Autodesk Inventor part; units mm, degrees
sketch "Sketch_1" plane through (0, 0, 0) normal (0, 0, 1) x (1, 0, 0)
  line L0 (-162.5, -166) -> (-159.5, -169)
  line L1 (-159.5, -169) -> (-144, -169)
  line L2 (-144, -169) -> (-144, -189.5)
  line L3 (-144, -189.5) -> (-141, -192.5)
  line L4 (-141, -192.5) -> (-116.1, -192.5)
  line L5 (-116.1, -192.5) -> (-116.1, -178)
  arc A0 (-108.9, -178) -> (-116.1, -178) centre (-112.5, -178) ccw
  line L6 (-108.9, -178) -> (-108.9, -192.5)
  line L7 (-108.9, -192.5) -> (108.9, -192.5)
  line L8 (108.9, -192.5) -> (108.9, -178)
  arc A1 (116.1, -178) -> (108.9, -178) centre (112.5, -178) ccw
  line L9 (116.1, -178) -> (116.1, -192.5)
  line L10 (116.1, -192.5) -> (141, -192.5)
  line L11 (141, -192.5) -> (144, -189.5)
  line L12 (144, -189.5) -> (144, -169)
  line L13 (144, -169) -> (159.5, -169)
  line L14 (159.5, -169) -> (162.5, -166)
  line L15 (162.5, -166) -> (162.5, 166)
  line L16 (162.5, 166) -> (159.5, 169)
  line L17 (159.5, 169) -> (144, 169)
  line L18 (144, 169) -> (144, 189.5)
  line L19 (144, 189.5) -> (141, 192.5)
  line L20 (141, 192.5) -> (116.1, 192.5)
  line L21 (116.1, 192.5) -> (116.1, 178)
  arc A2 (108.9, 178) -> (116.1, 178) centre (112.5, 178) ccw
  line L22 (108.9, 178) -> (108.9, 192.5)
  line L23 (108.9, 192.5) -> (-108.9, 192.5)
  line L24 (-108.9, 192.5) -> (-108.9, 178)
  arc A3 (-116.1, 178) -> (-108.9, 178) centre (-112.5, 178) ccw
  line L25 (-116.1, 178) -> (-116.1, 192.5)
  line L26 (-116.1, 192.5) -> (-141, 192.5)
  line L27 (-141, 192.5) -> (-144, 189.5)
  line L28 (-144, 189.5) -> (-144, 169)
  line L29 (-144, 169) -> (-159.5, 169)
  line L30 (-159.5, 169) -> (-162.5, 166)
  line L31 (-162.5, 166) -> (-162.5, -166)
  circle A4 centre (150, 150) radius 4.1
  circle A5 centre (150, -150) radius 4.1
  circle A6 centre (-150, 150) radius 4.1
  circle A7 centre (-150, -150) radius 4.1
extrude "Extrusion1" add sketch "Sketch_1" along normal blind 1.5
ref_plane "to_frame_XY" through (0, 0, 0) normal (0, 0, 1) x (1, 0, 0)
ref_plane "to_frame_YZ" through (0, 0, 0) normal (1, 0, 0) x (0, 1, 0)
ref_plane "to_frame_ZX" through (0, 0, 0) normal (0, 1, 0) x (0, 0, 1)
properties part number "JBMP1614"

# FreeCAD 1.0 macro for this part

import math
import FreeCAD as App
import Part
import Sketcher

V = App.Vector

doc = App.newDocument("Part")
body = doc.addObject("PartDesign::Body", "Body")

# Sketch on XY plane
sketch1 = body.newObject("Sketcher::SketchObject", "Sketch")
sketch1.AttachmentSupport = (doc.getObject("XY_Plane"), [""])
sketch1.MapMode = "FlatFace"
sketch1.addGeometry(Part.LineSegment(V(-162.5, 166, 0), V(-162.5, -166, 0)), False)
sketch1.addGeometry(Part.LineSegment(V(-162.5, -166, 0), V(-159.5, -169, 0)), False)
sketch1.addGeometry(Part.LineSegment(V(-159.5, -169, 0), V(-144, -169, 0)), False)
sketch1.addGeometry(Part.LineSegment(V(-144, -169, 0), V(-144, -189.5, 0)), False)
sketch1.addGeometry(Part.LineSegment(V(-144, -189.5, 0), V(-141, -192.5, 0)), False)
sketch1.addGeometry(Part.LineSegment(V(-141, -192.5, 0), V(-116.1, -192.5, 0)), False)
sketch1.addGeometry(Part.LineSegment(V(-116.1, -192.5, 0), V(-116.1, -178, 0)), False)
sketch1.addGeometry(Part.ArcOfCircle(Part.Circle(V(-112.5, -178, 0), V(0, 0, 1), 3.6), math.radians(0), math.radians(180)), False)
sketch1.addGeometry(Part.LineSegment(V(-108.9, -178, 0), V(-108.9, -192.5, 0)), False)
sketch1.addGeometry(Part.LineSegment(V(-108.9, -192.5, 0), V(108.9, -192.5, 0)), False)
sketch1.addGeometry(Part.LineSegment(V(108.9, -192.5, 0), V(108.9, -178, 0)), False)
sketch1.addGeometry(Part.ArcOfCircle(Part.Circle(V(112.5, -178, 0), V(0, 0, 1), 3.6), math.radians(0), math.radians(180)), False)
sketch1.addGeometry(Part.LineSegment(V(116.1, -178, 0), V(116.1, -192.5, 0)), False)
sketch1.addGeometry(Part.LineSegment(V(116.1, -192.5, 0), V(141, -192.5, 0)), False)
sketch1.addGeometry(Part.LineSegment(V(141, -192.5, 0), V(144, -189.5, 0)), False)
sketch1.addGeometry(Part.LineSegment(V(144, -189.5, 0), V(144, -169, 0)), False)
sketch1.addGeometry(Part.LineSegment(V(144, -169, 0), V(159.5, -169, 0)), False)
sketch1.addGeometry(Part.LineSegment(V(159.5, -169, 0), V(162.5, -166, 0)), False)
sketch1.addGeometry(Part.LineSegment(V(162.5, -166, 0), V(162.5, 166, 0)), False)
sketch1.addGeometry(Part.LineSegment(V(162.5, 166, 0), V(159.5, 169, 0)), False)
sketch1.addGeometry(Part.LineSegment(V(159.5, 169, 0), V(144, 169, 0)), False)
sketch1.addGeometry(Part.LineSegment(V(144, 169, 0), V(144, 189.5, 0)), False)
sketch1.addGeometry(Part.LineSegment(V(144, 189.5, 0), V(141, 192.5, 0)), False)
sketch1.addGeometry(Part.LineSegment(V(141, 192.5, 0), V(116.1, 192.5, 0)), False)
sketch1.addGeometry(Part.LineSegment(V(116.1, 192.5, 0), V(116.1, 178, 0)), False)
sketch1.addGeometry(Part.ArcOfCircle(Part.Circle(V(112.5, 178, 0), V(0, 0, 1), 3.6), math.radians(180), math.radians(360)), False)
sketch1.addGeometry(Part.LineSegment(V(108.9, 178, 0), V(108.9, 192.5, 0)), False)
sketch1.addGeometry(Part.LineSegment(V(108.9, 192.5, 0), V(-108.9, 192.5, 0)), False)
sketch1.addGeometry(Part.LineSegment(V(-108.9, 192.5, 0), V(-108.9, 178, 0)), False)
sketch1.addGeometry(Part.ArcOfCircle(Part.Circle(V(-112.5, 178, 0), V(0, 0, 1), 3.6), math.radians(180), math.radians(360)), False)
sketch1.addGeometry(Part.LineSegment(V(-116.1, 178, 0), V(-116.1, 192.5, 0)), False)
sketch1.addGeometry(Part.LineSegment(V(-116.1, 192.5, 0), V(-141, 192.5, 0)), False)
sketch1.addGeometry(Part.LineSegment(V(-141, 192.5, 0), V(-144, 189.5, 0)), False)
sketch1.addGeometry(Part.LineSegment(V(-144, 189.5, 0), V(-144, 169, 0)), False)
sketch1.addGeometry(Part.LineSegment(V(-144, 169, 0), V(-159.5, 169, 0)), False)
sketch1.addGeometry(Part.LineSegment(V(-159.5, 169, 0), V(-162.5, 166, 0)), False)
sketch1.addGeometry(Part.Circle(V(-150, -150, 0), V(0, 0, 1), 4.1), False)
sketch1.addGeometry(Part.Circle(V(150, -150, 0), V(0, 0, 1), 4.1), False)
sketch1.addGeometry(Part.Circle(V(-150, 150, 0), V(0, 0, 1), 4.1), False)
sketch1.addGeometry(Part.Circle(V(150, 150, 0), V(0, 0, 1), 4.1), False)
sketch1.addConstraint(Sketcher.Constraint("Coincident", 0, 2, 1, 1))
sketch1.addConstraint(Sketcher.Constraint("Coincident", 1, 2, 2, 1))
sketch1.addConstraint(Sketcher.Constraint("Coincident", 2, 2, 3, 1))
sketch1.addConstraint(Sketcher.Constraint("Coincident", 3, 2, 4, 1))
sketch1.addConstraint(Sketcher.Constraint("Coincident", 4, 2, 5, 1))
sketch1.addConstraint(Sketcher.Constraint("Coincident", 5, 2, 6, 1))
sketch1.addConstraint(Sketcher.Constraint("Tangent", 6, 2, 7, 2))
sketch1.addConstraint(Sketcher.Constraint("Tangent", 7, 1, 8, 1))
sketch1.addConstraint(Sketcher.Constraint("Coincident", 8, 2, 9, 1))
sketch1.addConstraint(Sketcher.Constraint("Coincident", 9, 2, 10, 1))
sketch1.addConstraint(Sketcher.Constraint("Tangent", 10, 2, 11, 2))
sketch1.addConstraint(Sketcher.Constraint("Tangent", 11, 1, 12, 1))
sketch1.addConstraint(Sketcher.Constraint("Coincident", 12, 2, 13, 1))
sketch1.addConstraint(Sketcher.Constraint("Coincident", 13, 2, 14, 1))
sketch1.addConstraint(Sketcher.Constraint("Coincident", 14, 2, 15, 1))
sketch1.addConstraint(Sketcher.Constraint("Coincident", 15, 2, 16, 1))
sketch1.addConstraint(Sketcher.Constraint("Coincident", 16, 2, 17, 1))
sketch1.addConstraint(Sketcher.Constraint("Coincident", 17, 2, 18, 1))
sketch1.addConstraint(Sketcher.Constraint("Coincident", 18, 2, 19, 1))
sketch1.addConstraint(Sketcher.Constraint("Coincident", 19, 2, 20, 1))
sketch1.addConstraint(Sketcher.Constraint("Coincident", 20, 2, 21, 1))
sketch1.addConstraint(Sketcher.Constraint("Coincident", 21, 2, 22, 1))
sketch1.addConstraint(Sketcher.Constraint("Coincident", 22, 2, 23, 1))
sketch1.addConstraint(Sketcher.Constraint("Coincident", 23, 2, 24, 1))
sketch1.addConstraint(Sketcher.Constraint("Tangent", 24, 2, 25, 2))
sketch1.addConstraint(Sketcher.Constraint("Tangent", 25, 1, 26, 1))
sketch1.addConstraint(Sketcher.Constraint("Coincident", 26, 2, 27, 1))
sketch1.addConstraint(Sketcher.Constraint("Coincident", 27, 2, 28, 1))
sketch1.addConstraint(Sketcher.Constraint("Tangent", 28, 2, 29, 2))
sketch1.addConstraint(Sketcher.Constraint("Tangent", 29, 1, 30, 1))
sketch1.addConstraint(Sketcher.Constraint("Coincident", 30, 2, 31, 1))
sketch1.addConstraint(Sketcher.Constraint("Coincident", 31, 2, 32, 1))
sketch1.addConstraint(Sketcher.Constraint("Coincident", 32, 2, 33, 1))
sketch1.addConstraint(Sketcher.Constraint("Coincident", 33, 2, 34, 1))
sketch1.addConstraint(Sketcher.Constraint("Coincident", 34, 2, 35, 1))
sketch1.addConstraint(Sketcher.Constraint("Coincident", 35, 2, 0, 1))
sketch1.addConstraint(Sketcher.Constraint("Vertical", 0))
sketch1.addConstraint(Sketcher.Constraint("Horizontal", 2))
sketch1.addConstraint(Sketcher.Constraint("Vertical", 3))
sketch1.addConstraint(Sketcher.Constraint("Horizontal", 5))
sketch1.addConstraint(Sketcher.Constraint("Vertical", 6))
sketch1.addConstraint(Sketcher.Constraint("Vertical", 8))
sketch1.addConstraint(Sketcher.Constraint("Horizontal", 9))
sketch1.addConstraint(Sketcher.Constraint("Vertical", 10))
sketch1.addConstraint(Sketcher.Constraint("Vertical", 12))
sketch1.addConstraint(Sketcher.Constraint("Horizontal", 13))
sketch1.addConstraint(Sketcher.Constraint("Vertical", 15))
sketch1.addConstraint(Sketcher.Constraint("Horizontal", 16))
sketch1.addConstraint(Sketcher.Constraint("Vertical", 18))
sketch1.addConstraint(Sketcher.Constraint("Horizontal", 20))
sketch1.addConstraint(Sketcher.Constraint("Vertical", 21))
sketch1.addConstraint(Sketcher.Constraint("Horizontal", 23))
sketch1.addConstraint(Sketcher.Constraint("Vertical", 24))
sketch1.addConstraint(Sketcher.Constraint("Vertical", 26))
sketch1.addConstraint(Sketcher.Constraint("Horizontal", 27))
sketch1.addConstraint(Sketcher.Constraint("Vertical", 28))
sketch1.addConstraint(Sketcher.Constraint("Vertical", 30))
sketch1.addConstraint(Sketcher.Constraint("Horizontal", 31))
sketch1.addConstraint(Sketcher.Constraint("Vertical", 33))
sketch1.addConstraint(Sketcher.Constraint("Horizontal", 34))
sketch1.addConstraint(Sketcher.Constraint("Equal", 7, 11))
sketch1.addConstraint(Sketcher.Constraint("Equal", 11, 25))
sketch1.addConstraint(Sketcher.Constraint("Equal", 25, 29))
sketch1.addConstraint(Sketcher.Constraint("Equal", 36, 37))
sketch1.addConstraint(Sketcher.Constraint("Equal", 37, 38))
sketch1.addConstraint(Sketcher.Constraint("Equal", 38, 39))
sketch1.addConstraint(Sketcher.Constraint("Symmetric", 7, 3, 25, 3, -1, 1))
sketch1.addConstraint(Sketcher.Constraint("Symmetric", 11, 3, 29, 3, -1, 1))
sketch1.addConstraint(Sketcher.Constraint("Symmetric", 37, 3, 38, 3, -1, 1))
sketch1.addConstraint(Sketcher.Constraint("Symmetric", 36, 3, 39, 3, -1, 1))
sketch1.addConstraint(Sketcher.Constraint("Symmetric", 0, 2, 18, 2, -1, 1))
sketch1.addConstraint(Sketcher.Constraint("Symmetric", 1, 2, 19, 2, -1, 1))
sketch1.addConstraint(Sketcher.Constraint("Symmetric", 3, 2, 21, 2, -1, 1))
sketch1.addConstraint(Sketcher.Constraint("Symmetric", 4, 2, 22, 2, -1, 1))
sketch1.addConstraint(Sketcher.Constraint("Symmetric", 13, 2, 31, 2, -1, 1))
sketch1.addConstraint(Sketcher.Constraint("Symmetric", 14, 2, 32, 2, -1, 1))
sketch1.addConstraint(Sketcher.Constraint("Symmetric", 16, 2, 34, 2, -1, 1))
sketch1.addConstraint(Sketcher.Constraint("Symmetric", 7, 3, 11, 3, -2))
sketch1.addConstraint(Sketcher.Constraint("Symmetric", 36, 3, 37, 3, -2))
sketch1.addConstraint(Sketcher.Constraint("Symmetric", 4, 2, 13, 2, -2))
sketch1.addConstraint(Sketcher.Constraint("Symmetric", 3, 2, 14, 2, -2))
sketch1.addConstraint(Sketcher.Constraint("Symmetric", 1, 2, 16, 2, -2))
sketch1.addConstraint(Sketcher.Constraint("Parallel", 1, 4))
sketch1.addConstraint(Sketcher.Constraint("Perpendicular", 4, 14))
sketch1.addConstraint(Sketcher.Constraint("Parallel", 14, 17))
sketch1.addConstraint(Sketcher.Constraint("Parallel", 32, 35))
sketch1.addConstraint(Sketcher.Constraint("Horizontal", 5, 2, 8, 2))
sketch1.addConstraint(Sketcher.Constraint("Horizontal", 23, 2, 26, 2))
sketch1.addConstraint(Sketcher.Constraint("Equal", 1, 4))
sketch1.addConstraint(Sketcher.Constraint("Diameter", 36, 8.2))
sketch1.addConstraint(Sketcher.Constraint("Radius", 7, 3.6))
sketch1.addConstraint(Sketcher.Constraint("DistanceY", 0, 2, 0, 1, 332.0))
sketch1.addConstraint(Sketcher.Constraint("DistanceX", 2, 1, 2, 2, 15.5))
sketch1.addConstraint(Sketcher.Constraint("DistanceX", 5, 1, 5, 2, 24.9))
sketch1.addConstraint(Sketcher.Constraint("DistanceX", 9, 1, 9, 2, 217.8))
sketch1.addConstraint(Sketcher.Constraint("DistanceY", 3, 2, 3, 1, 20.5))
sketch1.addConstraint(Sketcher.Constraint("DistanceY", 6, 1, 6, 2, 14.5))
sketch1.addConstraint(Sketcher.Constraint("DistanceY", 7, 3, -1, 1, 178.0))
sketch1.addConstraint(Sketcher.Constraint("DistanceX", 36, 3, -1, 1, 150.0))
sketch1.addConstraint(Sketcher.Constraint("DistanceY", 36, 3, -1, 1, 150.0))
pad1 = body.newObject("PartDesign::Pad", "Pad")
pad1.Profile = sketch1
pad1.Length = 1.5

doc.recompute()
